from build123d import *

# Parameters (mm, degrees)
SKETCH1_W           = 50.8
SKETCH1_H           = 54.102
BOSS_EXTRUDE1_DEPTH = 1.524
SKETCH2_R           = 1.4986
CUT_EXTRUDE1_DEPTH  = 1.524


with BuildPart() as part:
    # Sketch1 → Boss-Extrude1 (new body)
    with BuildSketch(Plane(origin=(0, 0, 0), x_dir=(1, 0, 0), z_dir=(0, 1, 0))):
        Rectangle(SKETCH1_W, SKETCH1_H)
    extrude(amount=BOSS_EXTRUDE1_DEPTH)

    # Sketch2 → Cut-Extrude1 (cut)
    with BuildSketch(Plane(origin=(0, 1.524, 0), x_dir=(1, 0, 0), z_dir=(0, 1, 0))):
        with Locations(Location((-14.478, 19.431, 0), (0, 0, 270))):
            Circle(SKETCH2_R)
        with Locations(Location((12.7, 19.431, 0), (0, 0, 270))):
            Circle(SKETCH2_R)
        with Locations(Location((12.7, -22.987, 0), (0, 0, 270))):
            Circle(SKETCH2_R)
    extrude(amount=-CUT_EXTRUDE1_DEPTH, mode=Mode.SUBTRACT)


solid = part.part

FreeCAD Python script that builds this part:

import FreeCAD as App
import Part
import Sketcher

V = App.Vector
Q = App.Units.Quantity

doc = App.newDocument("Part")
body = doc.addObject("PartDesign::Body", "Body")

# Sketch on XZ plane
sketch1 = body.newObject("Sketcher::SketchObject", "Sketch")
sketch1.AttachmentSupport = (doc.getObject("XZ_Plane"), [""])
sketch1.MapMode = "FlatFace"
sketch1.addGeometry([
    Part.LineSegment(V(-25, -27, 0), V(-25, 27, 0)),
    Part.LineSegment(V(-25, 27, 0), V(25, 27, 0)),
    Part.LineSegment(V(25, 27, 0), V(25, -27, 0)),
    Part.LineSegment(V(25, -27, 0), V(-25, -27, 0)),
], False)
sketch1.addConstraint([
    Sketcher.Constraint("Coincident", 0, 2, 1, 1),
    Sketcher.Constraint("Coincident", 1, 2, 2, 1),
    Sketcher.Constraint("Coincident", 2, 2, 3, 1),
    Sketcher.Constraint("Coincident", 3, 2, 0, 1),
    Sketcher.Constraint("Vertical", 0),
    Sketcher.Constraint("Horizontal", 1),
    Sketcher.Constraint("Vertical", 2),
    Sketcher.Constraint("Horizontal", 3),
    Sketcher.Constraint("Symmetric", 0, 2, 2, 2, -1, 1),
    Sketcher.Constraint("DistanceX", 1, 1, 1, 2, Q("2 in")),
    Sketcher.Constraint("DistanceY", 0, 1, 0, 2, Q("2.13 in")),
])
pad1 = body.newObject("PartDesign::Pad", "Pad")
pad1.Profile = sketch1
pad1.Length = Q("0.06 in")
pad1.Reversed = True

# Sketch on XZ plane
sketch2 = body.newObject("Sketcher::SketchObject", "Sketch001")
sketch2.AttachmentSupport = (doc.getObject("XZ_Plane"), [""])
sketch2.MapMode = "FlatFace"
sketch2.AttachmentOffset = App.Placement(V(0, 0, -0.06 * 25.4), App.Rotation())
sketch2.addGeometry([
    Part.Circle(V(-14.5, -19.4, 0), V(0, 0, 1), 1.5),
    Part.Circle(V(12.7, -19.4, 0), V(0, 0, 1), 1.5),
    Part.Circle(V(12.7, 23, 0), V(0, 0, 1), 1.5),
], False)
sketch2.addConstraint([
    Sketcher.Constraint("Equal", 0, 1),
    Sketcher.Constraint("Equal", 1, 2),
    Sketcher.Constraint("Horizontal", 0, 3, 1, 3),
    Sketcher.Constraint("Vertical", 1, 3, 2, 3),
    Sketcher.Constraint("Diameter", 0, Q("0.118 in")),
    Sketcher.Constraint("DistanceX", -1, 1, 1, 3, Q("0.5 in")),
    Sketcher.Constraint("DistanceX", 0, 3, -1, 1, Q("0.57 in")),
    Sketcher.Constraint("DistanceY", 1, 3, 2, 3, Q("1.67 in")),
    Sketcher.Constraint("DistanceY", 0, 3, -1, 1, Q("0.765 in")),
])
pocket1 = body.newObject("PartDesign::Pocket", "Pocket")
pocket1.Profile = sketch2
pocket1.Length = Q("0.06 in")
pocket1.Reversed = True

doc.recompute()
